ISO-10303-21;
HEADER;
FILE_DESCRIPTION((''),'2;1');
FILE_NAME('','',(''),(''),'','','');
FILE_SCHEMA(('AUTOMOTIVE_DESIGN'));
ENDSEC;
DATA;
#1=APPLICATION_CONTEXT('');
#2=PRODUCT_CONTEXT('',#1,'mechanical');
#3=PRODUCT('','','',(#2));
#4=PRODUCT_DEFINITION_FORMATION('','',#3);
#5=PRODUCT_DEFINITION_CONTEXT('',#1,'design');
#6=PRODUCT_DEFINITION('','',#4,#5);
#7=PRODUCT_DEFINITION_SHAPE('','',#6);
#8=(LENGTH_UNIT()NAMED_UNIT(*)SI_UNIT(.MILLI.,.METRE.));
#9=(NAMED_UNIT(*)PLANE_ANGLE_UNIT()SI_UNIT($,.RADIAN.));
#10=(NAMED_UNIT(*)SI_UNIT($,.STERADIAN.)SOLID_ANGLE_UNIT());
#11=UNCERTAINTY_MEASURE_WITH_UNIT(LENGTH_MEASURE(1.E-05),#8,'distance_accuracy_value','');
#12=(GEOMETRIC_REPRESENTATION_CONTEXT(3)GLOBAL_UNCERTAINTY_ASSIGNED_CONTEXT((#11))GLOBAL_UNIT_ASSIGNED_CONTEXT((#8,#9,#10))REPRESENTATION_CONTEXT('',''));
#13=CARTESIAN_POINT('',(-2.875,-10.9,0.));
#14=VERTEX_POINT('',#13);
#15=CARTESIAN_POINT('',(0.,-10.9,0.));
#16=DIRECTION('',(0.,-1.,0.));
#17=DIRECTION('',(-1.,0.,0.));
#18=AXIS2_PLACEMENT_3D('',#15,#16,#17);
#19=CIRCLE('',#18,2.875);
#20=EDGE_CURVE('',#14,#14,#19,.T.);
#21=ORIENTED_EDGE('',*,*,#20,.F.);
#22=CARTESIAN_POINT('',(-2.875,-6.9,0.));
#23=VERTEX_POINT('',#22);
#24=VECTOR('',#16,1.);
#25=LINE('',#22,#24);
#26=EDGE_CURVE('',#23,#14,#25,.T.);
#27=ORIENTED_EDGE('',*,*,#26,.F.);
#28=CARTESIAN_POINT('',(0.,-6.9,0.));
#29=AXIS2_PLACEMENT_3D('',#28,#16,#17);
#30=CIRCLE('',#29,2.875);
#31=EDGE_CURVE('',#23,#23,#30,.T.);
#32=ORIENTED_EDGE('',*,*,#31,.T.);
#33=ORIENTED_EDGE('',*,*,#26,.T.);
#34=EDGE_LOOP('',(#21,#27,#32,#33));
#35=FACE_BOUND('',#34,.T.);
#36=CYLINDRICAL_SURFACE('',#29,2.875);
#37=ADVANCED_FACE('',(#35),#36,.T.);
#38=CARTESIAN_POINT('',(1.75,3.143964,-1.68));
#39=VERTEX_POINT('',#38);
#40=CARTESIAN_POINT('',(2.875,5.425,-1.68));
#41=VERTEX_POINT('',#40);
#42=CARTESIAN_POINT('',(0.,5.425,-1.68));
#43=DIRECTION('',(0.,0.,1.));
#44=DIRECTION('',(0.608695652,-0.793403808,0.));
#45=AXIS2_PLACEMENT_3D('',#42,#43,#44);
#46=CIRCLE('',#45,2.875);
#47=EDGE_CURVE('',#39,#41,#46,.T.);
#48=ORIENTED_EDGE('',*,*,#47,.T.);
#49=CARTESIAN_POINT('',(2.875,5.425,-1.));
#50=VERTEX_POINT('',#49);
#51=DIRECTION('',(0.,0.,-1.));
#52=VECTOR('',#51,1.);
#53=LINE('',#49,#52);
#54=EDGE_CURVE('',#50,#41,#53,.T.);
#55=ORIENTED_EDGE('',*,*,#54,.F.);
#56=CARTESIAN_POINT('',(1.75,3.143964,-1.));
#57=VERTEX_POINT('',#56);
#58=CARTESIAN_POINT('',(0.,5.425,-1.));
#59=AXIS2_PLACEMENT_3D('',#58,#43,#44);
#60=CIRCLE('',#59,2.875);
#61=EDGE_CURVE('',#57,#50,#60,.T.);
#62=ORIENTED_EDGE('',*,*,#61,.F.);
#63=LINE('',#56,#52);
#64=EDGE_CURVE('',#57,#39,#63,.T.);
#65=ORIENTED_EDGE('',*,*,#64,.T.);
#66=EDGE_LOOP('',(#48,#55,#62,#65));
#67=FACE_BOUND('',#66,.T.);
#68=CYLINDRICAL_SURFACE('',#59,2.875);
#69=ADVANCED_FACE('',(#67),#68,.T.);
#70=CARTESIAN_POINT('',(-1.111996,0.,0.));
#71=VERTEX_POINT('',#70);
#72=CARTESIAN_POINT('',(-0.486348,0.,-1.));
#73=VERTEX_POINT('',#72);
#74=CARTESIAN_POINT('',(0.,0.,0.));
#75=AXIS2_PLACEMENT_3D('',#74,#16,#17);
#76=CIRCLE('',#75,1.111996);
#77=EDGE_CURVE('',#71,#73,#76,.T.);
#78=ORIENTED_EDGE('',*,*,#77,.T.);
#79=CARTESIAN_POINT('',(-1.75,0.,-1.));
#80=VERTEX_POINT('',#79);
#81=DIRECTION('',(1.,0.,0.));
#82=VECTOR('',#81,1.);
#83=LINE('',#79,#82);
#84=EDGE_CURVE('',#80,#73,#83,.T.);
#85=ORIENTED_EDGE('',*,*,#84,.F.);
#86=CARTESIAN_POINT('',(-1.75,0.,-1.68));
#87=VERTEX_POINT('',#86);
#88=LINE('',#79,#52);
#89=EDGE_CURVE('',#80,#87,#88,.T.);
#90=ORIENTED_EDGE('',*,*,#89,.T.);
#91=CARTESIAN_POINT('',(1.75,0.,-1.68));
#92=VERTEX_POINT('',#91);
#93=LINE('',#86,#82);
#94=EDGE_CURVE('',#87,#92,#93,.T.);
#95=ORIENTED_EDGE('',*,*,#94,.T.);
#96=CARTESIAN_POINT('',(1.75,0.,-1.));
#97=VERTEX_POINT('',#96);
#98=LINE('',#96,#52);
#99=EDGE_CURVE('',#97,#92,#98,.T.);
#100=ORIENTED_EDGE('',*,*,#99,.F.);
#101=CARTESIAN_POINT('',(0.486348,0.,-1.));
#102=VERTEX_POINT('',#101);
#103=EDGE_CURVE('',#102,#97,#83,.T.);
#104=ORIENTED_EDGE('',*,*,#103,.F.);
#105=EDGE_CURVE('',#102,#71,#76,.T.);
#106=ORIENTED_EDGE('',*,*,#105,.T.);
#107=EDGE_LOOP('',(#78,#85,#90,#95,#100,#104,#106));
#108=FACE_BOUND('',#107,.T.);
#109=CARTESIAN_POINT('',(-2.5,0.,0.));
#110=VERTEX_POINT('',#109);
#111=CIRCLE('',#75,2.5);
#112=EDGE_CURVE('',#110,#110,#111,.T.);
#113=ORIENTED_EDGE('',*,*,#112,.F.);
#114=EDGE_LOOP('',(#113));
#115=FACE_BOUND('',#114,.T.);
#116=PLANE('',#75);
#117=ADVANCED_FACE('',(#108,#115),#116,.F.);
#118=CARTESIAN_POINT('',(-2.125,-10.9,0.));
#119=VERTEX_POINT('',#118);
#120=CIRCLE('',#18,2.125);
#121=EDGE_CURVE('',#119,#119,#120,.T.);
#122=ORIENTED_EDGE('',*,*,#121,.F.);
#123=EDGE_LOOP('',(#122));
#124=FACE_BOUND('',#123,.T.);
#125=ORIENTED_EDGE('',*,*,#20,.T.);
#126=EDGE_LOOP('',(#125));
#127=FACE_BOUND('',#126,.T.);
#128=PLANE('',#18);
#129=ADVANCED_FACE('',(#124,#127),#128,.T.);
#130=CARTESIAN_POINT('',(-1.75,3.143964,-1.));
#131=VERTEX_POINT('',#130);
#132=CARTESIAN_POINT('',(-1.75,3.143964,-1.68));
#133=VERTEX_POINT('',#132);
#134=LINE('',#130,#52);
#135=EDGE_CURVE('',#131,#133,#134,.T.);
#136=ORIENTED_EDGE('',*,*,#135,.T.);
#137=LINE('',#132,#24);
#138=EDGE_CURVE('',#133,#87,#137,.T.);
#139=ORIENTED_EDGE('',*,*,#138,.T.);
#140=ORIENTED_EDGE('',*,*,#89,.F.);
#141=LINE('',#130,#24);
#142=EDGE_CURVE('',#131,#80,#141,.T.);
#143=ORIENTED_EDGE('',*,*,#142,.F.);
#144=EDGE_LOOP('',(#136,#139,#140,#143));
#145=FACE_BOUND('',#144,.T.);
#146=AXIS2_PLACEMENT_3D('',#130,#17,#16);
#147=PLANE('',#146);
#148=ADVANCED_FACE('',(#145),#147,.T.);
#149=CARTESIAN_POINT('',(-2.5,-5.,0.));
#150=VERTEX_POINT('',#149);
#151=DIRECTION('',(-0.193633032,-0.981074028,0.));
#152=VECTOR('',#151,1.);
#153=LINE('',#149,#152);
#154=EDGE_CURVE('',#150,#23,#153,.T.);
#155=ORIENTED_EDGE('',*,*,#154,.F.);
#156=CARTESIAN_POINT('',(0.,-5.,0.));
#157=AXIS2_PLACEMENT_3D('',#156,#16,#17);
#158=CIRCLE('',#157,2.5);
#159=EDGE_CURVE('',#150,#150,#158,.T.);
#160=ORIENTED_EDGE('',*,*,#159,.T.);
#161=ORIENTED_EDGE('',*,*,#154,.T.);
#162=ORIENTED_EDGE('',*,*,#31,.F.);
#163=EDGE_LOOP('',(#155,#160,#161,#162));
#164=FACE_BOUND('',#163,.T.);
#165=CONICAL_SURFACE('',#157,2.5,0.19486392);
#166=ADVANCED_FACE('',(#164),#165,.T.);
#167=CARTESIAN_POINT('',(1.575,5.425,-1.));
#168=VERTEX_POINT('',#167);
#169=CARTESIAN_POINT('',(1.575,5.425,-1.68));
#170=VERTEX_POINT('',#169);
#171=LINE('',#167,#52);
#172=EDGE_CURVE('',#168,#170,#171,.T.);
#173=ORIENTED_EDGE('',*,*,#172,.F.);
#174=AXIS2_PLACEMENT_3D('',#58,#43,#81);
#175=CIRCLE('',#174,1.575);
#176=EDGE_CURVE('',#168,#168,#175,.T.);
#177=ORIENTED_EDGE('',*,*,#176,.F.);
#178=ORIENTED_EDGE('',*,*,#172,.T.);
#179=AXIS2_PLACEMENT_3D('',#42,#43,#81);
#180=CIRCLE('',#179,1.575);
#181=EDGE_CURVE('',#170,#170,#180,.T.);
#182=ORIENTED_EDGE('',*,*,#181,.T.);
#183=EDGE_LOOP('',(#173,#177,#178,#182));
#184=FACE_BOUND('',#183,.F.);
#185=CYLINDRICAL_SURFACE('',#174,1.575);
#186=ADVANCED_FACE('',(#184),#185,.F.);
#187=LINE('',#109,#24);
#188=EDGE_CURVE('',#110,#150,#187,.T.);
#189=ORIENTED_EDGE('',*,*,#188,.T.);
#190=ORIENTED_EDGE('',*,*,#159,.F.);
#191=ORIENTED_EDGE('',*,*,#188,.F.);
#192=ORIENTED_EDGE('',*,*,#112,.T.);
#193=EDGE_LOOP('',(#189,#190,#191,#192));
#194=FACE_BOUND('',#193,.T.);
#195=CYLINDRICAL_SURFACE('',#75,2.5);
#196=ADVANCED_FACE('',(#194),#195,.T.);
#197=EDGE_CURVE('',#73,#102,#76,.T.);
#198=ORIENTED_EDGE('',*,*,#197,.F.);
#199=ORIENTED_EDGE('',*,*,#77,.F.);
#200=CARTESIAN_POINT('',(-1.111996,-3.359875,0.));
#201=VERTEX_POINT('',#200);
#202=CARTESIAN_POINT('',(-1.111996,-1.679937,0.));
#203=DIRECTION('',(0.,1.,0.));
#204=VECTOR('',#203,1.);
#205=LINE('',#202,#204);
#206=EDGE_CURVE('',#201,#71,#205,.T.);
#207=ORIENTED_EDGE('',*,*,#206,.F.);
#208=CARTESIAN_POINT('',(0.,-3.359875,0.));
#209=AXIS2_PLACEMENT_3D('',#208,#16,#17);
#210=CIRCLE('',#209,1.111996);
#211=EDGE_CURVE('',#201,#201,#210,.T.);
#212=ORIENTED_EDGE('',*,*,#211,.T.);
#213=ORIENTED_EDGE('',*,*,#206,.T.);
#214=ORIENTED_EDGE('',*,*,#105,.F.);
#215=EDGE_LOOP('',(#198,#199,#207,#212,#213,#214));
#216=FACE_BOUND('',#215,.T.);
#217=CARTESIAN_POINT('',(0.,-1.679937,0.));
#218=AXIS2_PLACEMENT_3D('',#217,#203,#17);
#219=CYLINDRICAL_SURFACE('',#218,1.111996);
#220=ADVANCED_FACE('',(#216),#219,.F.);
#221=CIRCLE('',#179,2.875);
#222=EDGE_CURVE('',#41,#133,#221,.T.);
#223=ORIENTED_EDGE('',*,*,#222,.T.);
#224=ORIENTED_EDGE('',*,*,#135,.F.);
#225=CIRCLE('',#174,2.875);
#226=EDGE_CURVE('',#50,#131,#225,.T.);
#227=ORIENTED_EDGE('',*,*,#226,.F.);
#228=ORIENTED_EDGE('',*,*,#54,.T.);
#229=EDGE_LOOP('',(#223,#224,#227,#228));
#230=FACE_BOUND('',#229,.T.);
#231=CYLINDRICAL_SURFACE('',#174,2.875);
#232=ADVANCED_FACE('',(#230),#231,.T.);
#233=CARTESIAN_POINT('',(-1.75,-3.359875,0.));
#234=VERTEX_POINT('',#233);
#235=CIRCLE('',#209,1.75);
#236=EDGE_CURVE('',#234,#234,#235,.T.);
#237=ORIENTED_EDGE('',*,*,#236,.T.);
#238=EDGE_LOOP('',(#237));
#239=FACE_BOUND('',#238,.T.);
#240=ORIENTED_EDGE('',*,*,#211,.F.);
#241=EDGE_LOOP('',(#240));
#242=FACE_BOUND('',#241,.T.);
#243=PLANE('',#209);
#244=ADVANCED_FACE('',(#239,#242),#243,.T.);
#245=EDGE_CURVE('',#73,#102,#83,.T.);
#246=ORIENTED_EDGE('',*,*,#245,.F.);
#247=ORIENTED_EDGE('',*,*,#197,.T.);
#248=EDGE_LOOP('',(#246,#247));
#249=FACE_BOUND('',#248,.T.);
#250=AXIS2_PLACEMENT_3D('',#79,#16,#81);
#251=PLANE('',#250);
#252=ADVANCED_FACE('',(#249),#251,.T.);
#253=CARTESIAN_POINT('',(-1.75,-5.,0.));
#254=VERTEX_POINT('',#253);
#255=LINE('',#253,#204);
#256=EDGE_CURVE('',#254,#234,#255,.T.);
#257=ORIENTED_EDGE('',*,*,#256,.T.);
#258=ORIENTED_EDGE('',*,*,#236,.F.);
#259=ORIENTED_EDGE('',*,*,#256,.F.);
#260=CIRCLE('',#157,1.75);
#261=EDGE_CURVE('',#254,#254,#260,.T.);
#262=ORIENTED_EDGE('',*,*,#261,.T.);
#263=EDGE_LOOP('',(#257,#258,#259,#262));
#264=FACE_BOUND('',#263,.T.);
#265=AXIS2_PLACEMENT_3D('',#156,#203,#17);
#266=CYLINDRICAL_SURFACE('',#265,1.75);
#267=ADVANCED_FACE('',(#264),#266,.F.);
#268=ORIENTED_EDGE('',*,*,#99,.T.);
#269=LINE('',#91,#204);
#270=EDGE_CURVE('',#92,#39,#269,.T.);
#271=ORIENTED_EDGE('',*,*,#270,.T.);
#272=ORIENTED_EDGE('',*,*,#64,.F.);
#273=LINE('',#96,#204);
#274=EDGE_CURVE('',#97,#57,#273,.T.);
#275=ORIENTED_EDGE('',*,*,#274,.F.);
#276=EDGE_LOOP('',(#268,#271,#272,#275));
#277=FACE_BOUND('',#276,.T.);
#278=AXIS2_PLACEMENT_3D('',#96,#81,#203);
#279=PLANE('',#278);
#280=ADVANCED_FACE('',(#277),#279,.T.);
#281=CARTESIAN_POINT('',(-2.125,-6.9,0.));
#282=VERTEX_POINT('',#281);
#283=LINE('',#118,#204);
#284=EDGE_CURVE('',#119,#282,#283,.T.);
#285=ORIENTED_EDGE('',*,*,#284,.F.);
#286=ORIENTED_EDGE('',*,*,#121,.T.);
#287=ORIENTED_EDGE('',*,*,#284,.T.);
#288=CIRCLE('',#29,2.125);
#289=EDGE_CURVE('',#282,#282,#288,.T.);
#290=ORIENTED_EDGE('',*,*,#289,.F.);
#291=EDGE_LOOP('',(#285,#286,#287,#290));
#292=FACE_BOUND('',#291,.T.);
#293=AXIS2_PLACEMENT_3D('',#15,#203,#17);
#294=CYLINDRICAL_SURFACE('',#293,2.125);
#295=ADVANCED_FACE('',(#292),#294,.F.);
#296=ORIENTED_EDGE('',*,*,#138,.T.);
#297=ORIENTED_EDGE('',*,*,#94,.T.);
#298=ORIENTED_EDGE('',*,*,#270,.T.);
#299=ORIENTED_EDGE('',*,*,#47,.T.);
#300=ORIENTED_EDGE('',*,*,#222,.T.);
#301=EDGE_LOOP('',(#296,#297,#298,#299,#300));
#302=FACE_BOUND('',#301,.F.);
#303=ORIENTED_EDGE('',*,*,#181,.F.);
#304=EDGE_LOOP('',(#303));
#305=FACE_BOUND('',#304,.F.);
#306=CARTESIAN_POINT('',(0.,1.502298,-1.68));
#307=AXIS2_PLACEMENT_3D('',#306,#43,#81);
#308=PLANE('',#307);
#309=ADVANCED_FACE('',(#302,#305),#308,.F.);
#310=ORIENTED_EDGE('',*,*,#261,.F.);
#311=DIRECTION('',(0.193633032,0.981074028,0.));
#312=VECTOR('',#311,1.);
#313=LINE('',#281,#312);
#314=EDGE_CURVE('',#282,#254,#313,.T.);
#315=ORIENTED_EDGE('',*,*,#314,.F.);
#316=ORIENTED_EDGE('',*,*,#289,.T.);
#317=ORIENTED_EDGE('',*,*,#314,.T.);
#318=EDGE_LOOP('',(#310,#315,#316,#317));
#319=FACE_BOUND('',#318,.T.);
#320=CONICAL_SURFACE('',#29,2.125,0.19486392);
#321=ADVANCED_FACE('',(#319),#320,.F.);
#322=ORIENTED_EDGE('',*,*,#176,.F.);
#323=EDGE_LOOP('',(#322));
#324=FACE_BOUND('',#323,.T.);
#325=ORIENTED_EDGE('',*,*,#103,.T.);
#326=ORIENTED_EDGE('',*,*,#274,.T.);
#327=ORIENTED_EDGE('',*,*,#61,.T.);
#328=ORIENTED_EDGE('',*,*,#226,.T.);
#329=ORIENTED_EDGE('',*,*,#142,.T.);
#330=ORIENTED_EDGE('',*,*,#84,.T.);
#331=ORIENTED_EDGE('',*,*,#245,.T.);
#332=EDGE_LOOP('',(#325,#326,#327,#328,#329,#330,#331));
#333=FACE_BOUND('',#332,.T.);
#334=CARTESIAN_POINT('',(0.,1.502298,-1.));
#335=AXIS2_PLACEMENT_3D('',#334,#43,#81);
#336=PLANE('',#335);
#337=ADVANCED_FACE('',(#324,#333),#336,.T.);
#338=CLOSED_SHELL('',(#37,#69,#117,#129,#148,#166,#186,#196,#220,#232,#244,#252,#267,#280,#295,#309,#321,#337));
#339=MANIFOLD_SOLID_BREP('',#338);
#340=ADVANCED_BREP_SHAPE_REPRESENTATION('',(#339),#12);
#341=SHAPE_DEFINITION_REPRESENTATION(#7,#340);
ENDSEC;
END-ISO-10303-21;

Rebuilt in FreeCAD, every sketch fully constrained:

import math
import FreeCAD as App
import Part
import Sketcher

V = App.Vector
Q = App.Units.Quantity

doc = App.newDocument("Part")
body = doc.addObject("PartDesign::Body", "Body")

sketch1 = doc.addObject("Sketcher::SketchObject", "Sketch")
body.addObject(sketch1)
sketch1.AttachmentSupport = (doc.XY_Plane, [""])
sketch1.MapMode = "FlatFace"
sketch1.addGeometry(Part.LineSegment(V(-1.75, -3.359875, 0), V(-1.111996, -3.359875, 0)), False)
sketch1.addGeometry(Part.LineSegment(V(-1.111996, -3.359875, 0), V(-1.111996, 0, 0)), False)
sketch1.addGeometry(Part.LineSegment(V(-1.111996, 0, 0), V(-2.5, 0, 0)), False)
sketch1.addGeometry(Part.LineSegment(V(-2.5, 0, 0), V(-2.5, -5, 0)), False)
sketch1.addGeometry(Part.LineSegment(V(-2.5, -5, 0), V(-2.875, -6.9, 0)), False)
sketch1.addGeometry(Part.LineSegment(V(-2.875, -6.9, 0), V(-2.875, -10.9, 0)), False)
sketch1.addGeometry(Part.LineSegment(V(-2.875, -10.9, 0), V(-2.125, -10.9, 0)), False)
sketch1.addGeometry(Part.LineSegment(V(-2.125, -10.9, 0), V(-2.125, -6.9, 0)), False)
sketch1.addGeometry(Part.LineSegment(V(-2.125, -6.9, 0), V(-1.75, -5, 0)), False)
sketch1.addGeometry(Part.LineSegment(V(-1.75, -5, 0), V(-1.75, -3.359875, 0)), False)
sketch1.addConstraint(Sketcher.Constraint("Coincident", 0, 2, 1, 1))
sketch1.addConstraint(Sketcher.Constraint("Coincident", 1, 2, 2, 1))
sketch1.addConstraint(Sketcher.Constraint("Coincident", 2, 2, 3, 1))
sketch1.addConstraint(Sketcher.Constraint("Coincident", 3, 2, 4, 1))
sketch1.addConstraint(Sketcher.Constraint("Coincident", 4, 2, 5, 1))
sketch1.addConstraint(Sketcher.Constraint("Coincident", 5, 2, 6, 1))
sketch1.addConstraint(Sketcher.Constraint("Coincident", 6, 2, 7, 1))
sketch1.addConstraint(Sketcher.Constraint("Coincident", 7, 2, 8, 1))
sketch1.addConstraint(Sketcher.Constraint("Coincident", 8, 2, 9, 1))
sketch1.addConstraint(Sketcher.Constraint("Coincident", 9, 2, 0, 1))
sketch1.addConstraint(Sketcher.Constraint("Horizontal", 0))
sketch1.addConstraint(Sketcher.Constraint("Vertical", 1))
sketch1.addConstraint(Sketcher.Constraint("Horizontal", 2))
sketch1.addConstraint(Sketcher.Constraint("Vertical", 3))
sketch1.addConstraint(Sketcher.Constraint("Vertical", 5))
sketch1.addConstraint(Sketcher.Constraint("Horizontal", 6))
sketch1.addConstraint(Sketcher.Constraint("Vertical", 7))
sketch1.addConstraint(Sketcher.Constraint("Vertical", 9))
sketch1.addConstraint(Sketcher.Constraint("PointOnObject", 1, 2, -1))
sketch1.addConstraint(Sketcher.Constraint("Parallel", 4, 8))
sketch1.addConstraint(Sketcher.Constraint("Horizontal", 4, 2, 7, 2))
sketch1.addConstraint(Sketcher.Constraint("Horizontal", 3, 2, 8, 2))
sketch1.addConstraint(Sketcher.Constraint("DistanceY", 3, 2, 3, 1, Q("5 mm")))
sketch1.addConstraint(Sketcher.Constraint("DistanceY", 5, 2, 5, 1, Q("4 mm")))
sketch1.addConstraint(Sketcher.Constraint("DistanceX", 6, 1, 6, 2, Q("0.75 mm")))
sketch1.addConstraint(Sketcher.Constraint("DistanceX", 2, 2, -1, 1, Q("2.5 mm")))
sketch1.addConstraint(Sketcher.Constraint("DistanceY", 4, 2, -1, 1, Q("6.9 mm")))
sketch1.addConstraint(Sketcher.Constraint("DistanceX", 4, 2, -1, 1, Q("2.875 mm")))
sketch1.addConstraint(Sketcher.Constraint("DistanceX", 0, 1, 0, 2, Q("0.638004 mm")))
sketch1.addConstraint(Sketcher.Constraint("DistanceY", 1, 1, 1, 2, Q("3.359875 mm")))
revolution = doc.addObject("PartDesign::Revolution", "Revolution")
body.addObject(revolution)
revolution.Profile = sketch1
revolution.ReferenceAxis = (sketch1, ["V_Axis"])
revolution.Angle = 360

sketch2 = doc.addObject("Sketcher::SketchObject", "Sketch001")
body.addObject(sketch2)
sketch2.AttachmentSupport = (doc.XY_Plane, [""])
sketch2.MapMode = "FlatFace"
sketch2.AttachmentOffset = App.Placement(V(0, 0, -1), App.Rotation())
sketch2.addGeometry(Part.LineSegment(V(-1.75, 3.143964, 0), V(-1.75, 0, 0)), False)
sketch2.addGeometry(Part.LineSegment(V(-1.75, 0, 0), V(1.75, 0, 0)), False)
sketch2.addGeometry(Part.LineSegment(V(1.75, 0, 0), V(1.75, 3.143964, 0)), False)
sketch2.addGeometry(Part.ArcOfCircle(Part.Circle(V(0, 5.425, 0), V(0, 0, 1), 2.875), math.radians(-52.50475), math.radians(0)), False)
sketch2.addGeometry(Part.ArcOfCircle(Part.Circle(V(0, 5.425, 0), V(0, 0, 1), 2.875), math.radians(0), math.radians(232.50475)), False)
sketch2.addGeometry(Part.Circle(V(0, 5.425, 0), V(0, 0, 1), 1.575), False)
sketch2.addConstraint(Sketcher.Constraint("Coincident", 0, 2, 1, 1))
sketch2.addConstraint(Sketcher.Constraint("Coincident", 1, 2, 2, 1))
sketch2.addConstraint(Sketcher.Constraint("Coincident", 2, 2, 3, 1))
sketch2.addConstraint(Sketcher.Constraint("Tangent", 3, 2, 4, 1))
sketch2.addConstraint(Sketcher.Constraint("Coincident", 4, 2, 0, 1))
sketch2.addConstraint(Sketcher.Constraint("Vertical", 0))
sketch2.addConstraint(Sketcher.Constraint("Horizontal", 1))
sketch2.addConstraint(Sketcher.Constraint("Vertical", 2))
sketch2.addConstraint(Sketcher.Constraint("Coincident", 5, 3, 3, 3))
sketch2.addConstraint(Sketcher.Constraint("Equal", 3, 4))
sketch2.addConstraint(Sketcher.Constraint("Symmetric", 0, 2, 1, 2, -1, 1))
sketch2.addConstraint(Sketcher.Constraint("PointOnObject", 3, 3, -2))
sketch2.addConstraint(Sketcher.Constraint("Horizontal", 5, 3, 3, 2))
sketch2.addConstraint(Sketcher.Constraint("Diameter", 5, Q("3.15 mm")))
sketch2.addConstraint(Sketcher.Constraint("DistanceX", 1, 1, 1, 2, Q("3.5 mm")))
sketch2.addConstraint(Sketcher.Constraint("Radius", 3, Q("2.875 mm")))
sketch2.addConstraint(Sketcher.Constraint("DistanceY", -1, 1, 3, 3, Q("5.425 mm")))
pad1 = doc.addObject("PartDesign::Pad", "Pad")
body.addObject(pad1)
pad1.Profile = sketch2
pad1.Length = 0.68
pad1.Reversed = True

doc.recompute()
